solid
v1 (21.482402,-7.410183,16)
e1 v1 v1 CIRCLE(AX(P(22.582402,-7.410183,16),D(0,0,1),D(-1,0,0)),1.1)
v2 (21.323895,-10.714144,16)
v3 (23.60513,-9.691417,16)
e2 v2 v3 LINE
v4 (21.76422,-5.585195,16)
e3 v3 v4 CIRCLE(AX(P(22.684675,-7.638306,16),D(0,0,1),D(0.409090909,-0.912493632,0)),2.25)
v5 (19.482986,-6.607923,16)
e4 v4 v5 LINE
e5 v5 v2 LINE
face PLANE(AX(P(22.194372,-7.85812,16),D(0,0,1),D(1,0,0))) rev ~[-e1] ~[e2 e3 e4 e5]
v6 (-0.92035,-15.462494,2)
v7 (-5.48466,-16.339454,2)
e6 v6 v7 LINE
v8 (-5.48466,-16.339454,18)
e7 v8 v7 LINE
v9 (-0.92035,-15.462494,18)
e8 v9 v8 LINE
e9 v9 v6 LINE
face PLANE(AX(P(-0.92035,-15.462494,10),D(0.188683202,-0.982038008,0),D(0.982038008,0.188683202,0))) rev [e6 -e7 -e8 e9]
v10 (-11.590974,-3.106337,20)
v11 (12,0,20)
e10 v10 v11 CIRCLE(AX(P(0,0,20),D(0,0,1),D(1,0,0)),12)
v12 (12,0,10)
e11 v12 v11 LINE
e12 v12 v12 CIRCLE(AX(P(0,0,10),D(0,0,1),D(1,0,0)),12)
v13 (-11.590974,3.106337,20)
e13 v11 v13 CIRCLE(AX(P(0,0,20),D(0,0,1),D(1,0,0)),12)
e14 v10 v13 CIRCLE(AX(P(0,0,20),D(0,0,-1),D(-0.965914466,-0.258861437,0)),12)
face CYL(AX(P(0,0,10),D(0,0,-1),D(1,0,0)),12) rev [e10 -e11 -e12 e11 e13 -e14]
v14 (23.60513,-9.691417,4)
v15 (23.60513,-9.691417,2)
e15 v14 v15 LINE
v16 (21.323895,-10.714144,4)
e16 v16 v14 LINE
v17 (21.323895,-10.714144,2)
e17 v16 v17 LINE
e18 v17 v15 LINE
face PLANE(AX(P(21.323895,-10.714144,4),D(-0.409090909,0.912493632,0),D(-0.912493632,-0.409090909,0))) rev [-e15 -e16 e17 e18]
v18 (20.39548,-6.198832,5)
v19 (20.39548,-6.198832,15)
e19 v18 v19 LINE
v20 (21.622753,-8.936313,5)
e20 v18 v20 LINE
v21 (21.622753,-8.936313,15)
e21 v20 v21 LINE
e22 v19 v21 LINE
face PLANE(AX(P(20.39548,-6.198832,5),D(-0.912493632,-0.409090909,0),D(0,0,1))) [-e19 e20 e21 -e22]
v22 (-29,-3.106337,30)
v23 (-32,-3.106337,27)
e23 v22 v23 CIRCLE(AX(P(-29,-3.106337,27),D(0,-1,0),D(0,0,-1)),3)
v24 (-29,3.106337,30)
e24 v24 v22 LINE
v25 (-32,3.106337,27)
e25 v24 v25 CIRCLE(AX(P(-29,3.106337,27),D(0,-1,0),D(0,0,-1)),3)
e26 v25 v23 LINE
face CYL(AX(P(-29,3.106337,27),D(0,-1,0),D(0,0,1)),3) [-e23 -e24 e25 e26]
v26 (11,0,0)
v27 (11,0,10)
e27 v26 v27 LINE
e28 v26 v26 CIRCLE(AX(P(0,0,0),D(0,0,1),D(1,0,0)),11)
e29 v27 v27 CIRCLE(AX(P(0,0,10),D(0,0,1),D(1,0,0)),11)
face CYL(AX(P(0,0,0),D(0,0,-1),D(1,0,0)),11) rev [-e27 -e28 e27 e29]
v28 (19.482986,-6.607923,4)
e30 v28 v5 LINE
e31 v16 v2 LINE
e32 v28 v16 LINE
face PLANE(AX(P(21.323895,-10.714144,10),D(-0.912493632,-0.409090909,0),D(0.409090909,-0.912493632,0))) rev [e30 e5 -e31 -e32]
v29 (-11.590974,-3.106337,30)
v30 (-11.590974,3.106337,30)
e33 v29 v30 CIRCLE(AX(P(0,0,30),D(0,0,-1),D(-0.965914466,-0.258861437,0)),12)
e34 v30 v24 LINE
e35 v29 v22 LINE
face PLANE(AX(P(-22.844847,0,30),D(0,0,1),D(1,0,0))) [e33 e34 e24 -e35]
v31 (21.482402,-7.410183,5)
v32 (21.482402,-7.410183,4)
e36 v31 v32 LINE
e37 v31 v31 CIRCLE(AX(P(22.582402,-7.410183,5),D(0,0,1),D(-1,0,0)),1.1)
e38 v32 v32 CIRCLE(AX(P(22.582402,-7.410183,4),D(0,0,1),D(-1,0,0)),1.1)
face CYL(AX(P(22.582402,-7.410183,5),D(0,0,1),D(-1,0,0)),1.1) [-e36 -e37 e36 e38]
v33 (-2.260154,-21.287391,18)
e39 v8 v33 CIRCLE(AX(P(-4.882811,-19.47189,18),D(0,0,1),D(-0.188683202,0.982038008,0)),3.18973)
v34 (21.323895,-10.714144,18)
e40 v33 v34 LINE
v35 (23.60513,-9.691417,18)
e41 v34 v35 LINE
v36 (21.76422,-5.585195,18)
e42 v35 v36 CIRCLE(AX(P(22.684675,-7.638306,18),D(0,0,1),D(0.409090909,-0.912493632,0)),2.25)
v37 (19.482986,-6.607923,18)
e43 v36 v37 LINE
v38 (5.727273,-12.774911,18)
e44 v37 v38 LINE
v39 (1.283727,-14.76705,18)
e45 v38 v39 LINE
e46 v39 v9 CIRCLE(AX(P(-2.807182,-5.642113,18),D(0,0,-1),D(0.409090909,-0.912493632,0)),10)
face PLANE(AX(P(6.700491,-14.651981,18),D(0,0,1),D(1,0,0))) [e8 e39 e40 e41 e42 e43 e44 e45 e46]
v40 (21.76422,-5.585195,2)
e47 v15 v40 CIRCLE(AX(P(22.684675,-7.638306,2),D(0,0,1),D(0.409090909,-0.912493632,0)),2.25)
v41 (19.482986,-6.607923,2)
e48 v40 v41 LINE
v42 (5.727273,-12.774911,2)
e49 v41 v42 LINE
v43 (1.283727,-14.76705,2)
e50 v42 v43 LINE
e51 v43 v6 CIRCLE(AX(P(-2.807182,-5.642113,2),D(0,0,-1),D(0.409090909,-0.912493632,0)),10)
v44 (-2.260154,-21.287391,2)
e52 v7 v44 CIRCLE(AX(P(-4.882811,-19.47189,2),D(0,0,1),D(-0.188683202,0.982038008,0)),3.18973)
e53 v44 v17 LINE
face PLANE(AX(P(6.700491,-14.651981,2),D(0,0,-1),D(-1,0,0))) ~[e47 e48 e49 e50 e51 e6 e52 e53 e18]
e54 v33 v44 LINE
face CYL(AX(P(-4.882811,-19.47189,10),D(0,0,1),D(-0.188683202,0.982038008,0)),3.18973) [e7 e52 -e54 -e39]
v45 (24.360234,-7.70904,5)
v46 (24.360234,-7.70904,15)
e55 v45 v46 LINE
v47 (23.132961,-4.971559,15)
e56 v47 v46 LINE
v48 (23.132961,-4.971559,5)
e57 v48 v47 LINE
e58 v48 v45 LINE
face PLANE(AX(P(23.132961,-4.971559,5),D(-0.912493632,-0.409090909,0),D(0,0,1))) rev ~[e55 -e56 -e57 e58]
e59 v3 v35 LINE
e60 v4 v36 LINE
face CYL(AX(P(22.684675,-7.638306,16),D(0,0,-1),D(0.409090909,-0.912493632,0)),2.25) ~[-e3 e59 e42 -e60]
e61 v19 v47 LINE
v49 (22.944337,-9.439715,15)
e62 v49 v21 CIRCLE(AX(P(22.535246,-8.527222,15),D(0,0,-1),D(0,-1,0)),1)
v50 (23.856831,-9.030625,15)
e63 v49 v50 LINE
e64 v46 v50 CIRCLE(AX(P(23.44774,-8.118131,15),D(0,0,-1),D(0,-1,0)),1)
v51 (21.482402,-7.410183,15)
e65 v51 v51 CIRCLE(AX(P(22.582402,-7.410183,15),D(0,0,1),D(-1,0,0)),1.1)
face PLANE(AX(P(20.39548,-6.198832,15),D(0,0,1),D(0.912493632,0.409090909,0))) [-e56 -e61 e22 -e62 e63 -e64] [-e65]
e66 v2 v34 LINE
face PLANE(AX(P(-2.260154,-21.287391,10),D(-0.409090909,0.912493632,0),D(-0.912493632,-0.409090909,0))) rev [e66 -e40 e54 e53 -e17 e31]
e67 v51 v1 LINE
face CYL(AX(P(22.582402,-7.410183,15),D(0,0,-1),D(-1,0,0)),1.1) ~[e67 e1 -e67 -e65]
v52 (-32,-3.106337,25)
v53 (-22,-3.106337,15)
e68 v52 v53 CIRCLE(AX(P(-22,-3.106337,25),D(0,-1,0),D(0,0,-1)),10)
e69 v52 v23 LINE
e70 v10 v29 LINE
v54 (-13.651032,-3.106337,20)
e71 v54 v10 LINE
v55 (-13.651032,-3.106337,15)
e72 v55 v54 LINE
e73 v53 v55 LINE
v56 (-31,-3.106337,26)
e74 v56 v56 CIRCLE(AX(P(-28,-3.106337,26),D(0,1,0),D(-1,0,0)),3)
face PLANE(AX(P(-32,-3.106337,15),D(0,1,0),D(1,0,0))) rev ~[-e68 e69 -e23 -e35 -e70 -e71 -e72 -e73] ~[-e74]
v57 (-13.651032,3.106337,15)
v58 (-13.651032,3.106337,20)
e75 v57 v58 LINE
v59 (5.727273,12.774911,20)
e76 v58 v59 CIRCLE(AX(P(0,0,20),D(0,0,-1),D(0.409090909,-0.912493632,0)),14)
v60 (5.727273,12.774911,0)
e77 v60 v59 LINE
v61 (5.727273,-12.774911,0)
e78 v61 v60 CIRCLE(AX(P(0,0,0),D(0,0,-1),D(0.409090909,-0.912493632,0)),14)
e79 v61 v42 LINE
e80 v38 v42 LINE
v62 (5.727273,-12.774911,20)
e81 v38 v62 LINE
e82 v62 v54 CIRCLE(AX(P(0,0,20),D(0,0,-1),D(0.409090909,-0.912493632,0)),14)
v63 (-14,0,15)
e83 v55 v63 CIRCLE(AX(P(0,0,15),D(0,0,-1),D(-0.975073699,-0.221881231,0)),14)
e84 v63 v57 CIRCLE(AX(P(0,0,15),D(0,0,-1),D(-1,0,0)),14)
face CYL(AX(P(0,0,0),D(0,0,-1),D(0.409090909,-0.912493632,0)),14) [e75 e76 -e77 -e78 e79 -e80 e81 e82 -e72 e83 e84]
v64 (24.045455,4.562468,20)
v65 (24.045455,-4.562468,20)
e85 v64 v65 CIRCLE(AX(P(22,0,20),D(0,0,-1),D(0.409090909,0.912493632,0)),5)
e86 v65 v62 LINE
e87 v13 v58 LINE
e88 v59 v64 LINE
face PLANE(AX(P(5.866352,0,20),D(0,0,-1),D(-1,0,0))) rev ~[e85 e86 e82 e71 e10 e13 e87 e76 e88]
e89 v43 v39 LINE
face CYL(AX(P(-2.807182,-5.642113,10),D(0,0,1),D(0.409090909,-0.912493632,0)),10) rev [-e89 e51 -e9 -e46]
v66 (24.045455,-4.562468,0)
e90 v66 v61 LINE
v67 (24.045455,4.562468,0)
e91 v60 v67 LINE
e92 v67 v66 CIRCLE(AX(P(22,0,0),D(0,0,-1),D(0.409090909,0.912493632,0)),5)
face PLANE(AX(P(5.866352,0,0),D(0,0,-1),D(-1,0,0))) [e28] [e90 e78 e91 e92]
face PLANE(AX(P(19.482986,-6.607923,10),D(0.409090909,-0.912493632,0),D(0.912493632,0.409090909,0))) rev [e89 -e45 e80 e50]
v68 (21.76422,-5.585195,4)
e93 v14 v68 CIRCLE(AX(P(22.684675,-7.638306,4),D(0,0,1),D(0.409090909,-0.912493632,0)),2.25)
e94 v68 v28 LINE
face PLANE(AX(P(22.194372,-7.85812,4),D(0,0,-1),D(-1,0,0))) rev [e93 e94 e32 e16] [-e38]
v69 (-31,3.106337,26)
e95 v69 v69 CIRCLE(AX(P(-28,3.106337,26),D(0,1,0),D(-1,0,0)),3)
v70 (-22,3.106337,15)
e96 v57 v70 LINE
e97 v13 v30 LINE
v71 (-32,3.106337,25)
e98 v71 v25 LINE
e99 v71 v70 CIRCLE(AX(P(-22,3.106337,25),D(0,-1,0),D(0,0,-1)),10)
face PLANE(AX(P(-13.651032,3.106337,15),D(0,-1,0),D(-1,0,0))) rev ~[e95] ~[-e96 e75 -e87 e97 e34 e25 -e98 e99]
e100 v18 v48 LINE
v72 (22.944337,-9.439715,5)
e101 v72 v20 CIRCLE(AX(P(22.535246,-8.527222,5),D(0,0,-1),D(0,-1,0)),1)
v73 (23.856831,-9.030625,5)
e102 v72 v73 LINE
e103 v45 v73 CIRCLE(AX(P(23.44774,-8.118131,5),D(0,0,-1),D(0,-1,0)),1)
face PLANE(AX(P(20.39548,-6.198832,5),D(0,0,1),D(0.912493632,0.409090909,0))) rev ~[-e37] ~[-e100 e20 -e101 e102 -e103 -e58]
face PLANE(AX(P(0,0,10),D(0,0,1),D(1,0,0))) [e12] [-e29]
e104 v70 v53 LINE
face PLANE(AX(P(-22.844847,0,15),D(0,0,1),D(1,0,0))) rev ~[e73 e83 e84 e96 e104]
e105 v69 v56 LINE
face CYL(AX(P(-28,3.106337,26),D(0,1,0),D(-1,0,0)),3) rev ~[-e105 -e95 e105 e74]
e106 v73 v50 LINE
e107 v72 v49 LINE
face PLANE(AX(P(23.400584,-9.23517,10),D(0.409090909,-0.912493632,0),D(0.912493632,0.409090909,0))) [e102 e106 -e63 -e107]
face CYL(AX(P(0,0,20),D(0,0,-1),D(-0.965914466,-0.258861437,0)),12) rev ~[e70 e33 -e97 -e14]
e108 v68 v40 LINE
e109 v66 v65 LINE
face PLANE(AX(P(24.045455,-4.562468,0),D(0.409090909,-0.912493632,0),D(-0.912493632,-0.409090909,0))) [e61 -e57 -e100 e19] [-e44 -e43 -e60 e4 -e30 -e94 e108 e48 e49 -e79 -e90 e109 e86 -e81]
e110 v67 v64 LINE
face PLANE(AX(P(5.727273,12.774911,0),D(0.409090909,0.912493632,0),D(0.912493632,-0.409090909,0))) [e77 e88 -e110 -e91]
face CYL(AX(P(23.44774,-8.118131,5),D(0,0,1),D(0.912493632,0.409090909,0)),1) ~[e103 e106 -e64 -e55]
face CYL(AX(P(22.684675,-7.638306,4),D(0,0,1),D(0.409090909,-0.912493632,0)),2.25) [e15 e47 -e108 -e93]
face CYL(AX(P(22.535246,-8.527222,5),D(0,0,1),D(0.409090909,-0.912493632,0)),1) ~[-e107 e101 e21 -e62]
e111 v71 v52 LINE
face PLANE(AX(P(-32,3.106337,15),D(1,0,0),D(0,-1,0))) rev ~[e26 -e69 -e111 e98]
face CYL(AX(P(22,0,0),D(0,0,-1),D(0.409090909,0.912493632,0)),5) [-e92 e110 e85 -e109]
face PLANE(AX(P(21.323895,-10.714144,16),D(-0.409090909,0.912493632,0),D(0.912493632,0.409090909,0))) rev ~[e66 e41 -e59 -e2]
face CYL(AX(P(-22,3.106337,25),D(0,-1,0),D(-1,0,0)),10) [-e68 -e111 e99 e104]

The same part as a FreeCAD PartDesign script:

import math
import FreeCAD as App
import Part
import Sketcher
from FreeCAD import Vector
Q = App.Units.Quantity


def edges_at(feature, points):
    """Names of the edges that pass closest to the given points."""
    edges = feature.Shape.Edges
    near = lambda p: min(range(len(edges)), key=lambda i: edges[i].distToShape(Part.Vertex(*p))[0])
    return sorted({f"Edge{near(p) + 1}" for p in points})

doc = App.newDocument("Part")
body = doc.addObject("PartDesign::Body", "Body")

# Sketch on XY plane
sketch1 = body.newObject("Sketcher::SketchObject", "Sketch")
sketch1.AttachmentSupport = (doc.getObject("XY_Plane"), [""])
sketch1.MapMode = "FlatFace"
sketch1.addGeometry([
    Part.LineSegment(Vector(24, 5, 0), Vector(6, 13, 0)),  # 0
    Part.ArcOfCircle(Part.Circle(Vector(0, 0, 0), Vector(0, 0, 1), 14), math.radians(66), math.radians(294)),  # 1
    Part.LineSegment(Vector(6, -13, 0), Vector(24, -5, 0)),  # 2
    Part.ArcOfCircle(Part.Circle(Vector(22, 0, 0), Vector(0, 0, 1), 5), math.radians(-66), math.radians(66)),  # 3
    Part.Circle(Vector(0, 0, 0), Vector(0, 0, 1), 11),  # 4
], False)
sketch1.addConstraint([
    Sketcher.Constraint("Tangent", 0, 2, 1, 1),
    Sketcher.Constraint("Tangent", 1, 2, 2, 1),
    Sketcher.Constraint("Tangent", 2, 2, 3, 1),
    Sketcher.Constraint("Tangent", 3, 2, 0, 1),
    Sketcher.Constraint("Coincident", 1, 3, -1, 1),
    Sketcher.Constraint("Coincident", 4, 3, -1, 1),
    Sketcher.Constraint("PointOnObject", 3, 3, -1),
    Sketcher.Constraint("Diameter", 4, Q("22 mm")),
    Sketcher.Constraint("Radius", 1, Q("14 mm")),
    Sketcher.Constraint("Radius", 3, Q("5 mm")),
    Sketcher.Constraint("DistanceX", -1, 1, 3, 3, Q("22 mm")),
])
pad1 = body.newObject("PartDesign::Pad", "Pad")
pad1.Profile = sketch1
pad1.Length = 20

# Sketch on XY plane
sketch2 = body.newObject("Sketcher::SketchObject", "Sketch001")
sketch2.AttachmentSupport = (doc.getObject("XY_Plane"), [""])
sketch2.MapMode = "FlatFace"
sketch2.AttachmentOffset = App.Placement(Vector(0, 0, 10), App.Rotation())
sketch2.addGeometry([
    Part.Circle(Vector(0, 0, 0), Vector(0, 0, 1), 12),
    Part.Circle(Vector(0, 0, 0), Vector(0, 0, 1), 11),
], False)
sketch2.addConstraint([
    Sketcher.Constraint("Coincident", 0, 3, -1, 1),
    Sketcher.Constraint("Coincident", 1, 3, -1, 1),
    Sketcher.Constraint("Diameter", 0, Q("24 mm")),
    Sketcher.Constraint("Diameter", 1, Q("22 mm")),
])
pocket1 = body.newObject("PartDesign::Pocket", "Pocket")
pocket1.Profile = sketch2
pocket1.Length = 10
pocket1.Reversed = True

# Sketch on an angled plane
sketch3 = body.newObject("Sketcher::SketchObject", "Sketch002")
sketch3.Placement = App.Placement(Vector(5.727273, -12.774911, 0), App.Rotation(Vector(0.912493632, 0.409090909, 0), Vector(0, 0, 1), Vector(0.409090909, -0.912493632, 0), "ZXY"))
sketch3.addGeometry([
    Part.LineSegment(Vector(16.1, 15, 0), Vector(16.1, 5, 0)),
    Part.LineSegment(Vector(16.1, 5, 0), Vector(19.1, 5, 0)),
    Part.LineSegment(Vector(19.1, 5, 0), Vector(19.1, 15, 0)),
    Part.LineSegment(Vector(19.1, 15, 0), Vector(16.1, 15, 0)),
], False)
sketch3.addConstraint([
    Sketcher.Constraint("Coincident", 0, 2, 1, 1),
    Sketcher.Constraint("Coincident", 1, 2, 2, 1),
    Sketcher.Constraint("Coincident", 2, 2, 3, 1),
    Sketcher.Constraint("Coincident", 3, 2, 0, 1),
    Sketcher.Constraint("Vertical", 0),
    Sketcher.Constraint("Horizontal", 1),
    Sketcher.Constraint("Vertical", 2),
    Sketcher.Constraint("Horizontal", 3),
    Sketcher.Constraint("DistanceX", 1, 1, 1, 2, Q("3 mm")),
    Sketcher.Constraint("DistanceY", 0, 2, 0, 1, Q("10 mm")),
    Sketcher.Constraint("DistanceY", -1, 1, 0, 2, Q("5 mm")),
    Sketcher.Constraint("DistanceX", -1, 1, 0, 2, Q("16.07486 mm")),
])
pad2 = body.newObject("PartDesign::Pad", "Pad001")
pad2.Profile = sketch3
pad2.Length = 4

# Sketch on XY plane
sketch4 = body.newObject("Sketcher::SketchObject", "Sketch003")
sketch4.AttachmentSupport = (doc.getObject("XY_Plane"), [""])
sketch4.MapMode = "FlatFace"
sketch4.AttachmentOffset = App.Placement(Vector(0, 0, 15), App.Rotation())
sketch4.addGeometry(Part.Circle(Vector(22.6, -7.4, 0), Vector(0, 0, 1), 1.1), False)
sketch4.addConstraint([
    Sketcher.Constraint("Diameter", 0, Q("2.2 mm")),
    Sketcher.Constraint("DistanceX", -1, 1, 0, 3, Q("22.582402 mm")),
    Sketcher.Constraint("DistanceY", 0, 3, -1, 1, Q("7.410183 mm")),
])
pad3 = body.newObject("PartDesign::Pad", "Pad002")
pad3.Profile = sketch4
pad3.Length = 1
doc.recompute()

datumplane = body.newObject("PartDesign::Plane", "DatumPlane")
datumplane.AttachmentSupport = (doc.getObject("XY_Plane"), [""])
datumplane.MapMode = "FlatFace"
datumplane.AttachmentOffset = App.Placement(Vector(0, 0, 10), App.Rotation())
mirrored = body.newObject("PartDesign::Mirrored", "Mirrored")
mirrored.Originals = [pad3]
mirrored.MirrorPlane = (datumplane, [""])
body.Tip = mirrored

# Sketch on XY plane
sketch5 = body.newObject("Sketcher::SketchObject", "Sketch004")
sketch5.AttachmentSupport = (doc.getObject("XY_Plane"), [""])
sketch5.MapMode = "FlatFace"
sketch5.AttachmentOffset = App.Placement(Vector(0, 0, 16), App.Rotation())
sketch5.addGeometry([
    Part.LineSegment(Vector(21.3, -10.7, 0), Vector(23.6, -9.7, 0)),
    Part.ArcOfCircle(Part.Circle(Vector(22.7, -7.6, 0), Vector(0, 0, 1), 2.2), math.radians(-66), math.radians(114)),
    Part.LineSegment(Vector(21.8, -5.6, 0), Vector(19.5, -6.6, 0)),
    Part.LineSegment(Vector(19.5, -6.6, 0), Vector(21.3, -10.7, 0)),
], False)
sketch5.addConstraint([
    Sketcher.Constraint("Tangent", 0, 2, 1, 1),
    Sketcher.Constraint("Tangent", 1, 2, 2, 1),
    Sketcher.Constraint("Coincident", 2, 2, 3, 1),
    Sketcher.Constraint("Coincident", 3, 2, 0, 1),
    Sketcher.Constraint("Parallel", 0, 2),
    Sketcher.Constraint("Perpendicular", 2, 3),
    Sketcher.Constraint("Radius", 1, Q("2.25 mm")),
    Sketcher.Constraint("Distance", 0, Q("2.5 mm")),
    Sketcher.Constraint("DistanceX", -1, 1, 0, 2, Q("23.60513 mm")),
    Sketcher.Constraint("DistanceX", -1, 1, 1, 2, Q("21.76422 mm")),
    Sketcher.Constraint("DistanceY", 1, 3, -1, 1, Q("7.638306 mm")),
])
pad4 = body.newObject("PartDesign::Pad", "Pad003")
pad4.Profile = sketch5
pad4.Length = 2

# Sketch on XY plane
sketch6 = body.newObject("Sketcher::SketchObject", "Sketch005")
sketch6.AttachmentSupport = (doc.getObject("XY_Plane"), [""])
sketch6.MapMode = "FlatFace"
sketch6.AttachmentOffset = App.Placement(Vector(0, 0, 10), App.Rotation())
sketch6.addGeometry([
    Part.LineSegment(Vector(-2.3, -21.3, 0), Vector(21.3, -10.7, 0)),  # 0
    Part.LineSegment(Vector(21.3, -10.7, 0), Vector(19.5, -6.6, 0)),  # 1
    Part.LineSegment(Vector(19.5, -6.6, 0), Vector(1.3, -14.8, 0)),  # 2
    Part.ArcOfCircle(Part.Circle(Vector(-2.8, -5.6, 0), Vector(0, 0, 1), 10), math.radians(-79.12), math.radians(-65.85)),  # 3
    Part.LineSegment(Vector(-0.9, -15.5, 0), Vector(-5.5, -16.3, 0)),  # 4
    Part.ArcOfCircle(Part.Circle(Vector(-4.9, -19.5, 0), Vector(0, 0, 1), 3.2), math.radians(101), math.radians(325)),  # 5
], False)
sketch6.addConstraint([
    Sketcher.Constraint("Coincident", 0, 2, 1, 1),
    Sketcher.Constraint("Coincident", 1, 2, 2, 1),
    Sketcher.Constraint("Tangent", 2, 2, 3, 2),
    Sketcher.Constraint("Tangent", 3, 1, 4, 1),
    Sketcher.Constraint("Tangent", 4, 2, 5, 1),
    Sketcher.Constraint("Coincident", 5, 2, 0, 1),
    Sketcher.Constraint("Perpendicular", 0, 1),
    Sketcher.Constraint("Perpendicular", 1, 2),
    Sketcher.Constraint("Radius", 3, Q("10 mm")),
    Sketcher.Constraint("Distance", 1, Q("4.5 mm")),
    Sketcher.Constraint("Radius", 5, Q("3.18973 mm")),
    Sketcher.Constraint("DistanceY", 5, 2, 5, 3, Q("1.815501 mm")),
    Sketcher.Constraint("DistanceX", 3, 3, -1, 1, Q("2.807182 mm")),
    Sketcher.Constraint("DistanceX", 5, 3, -1, 1, Q("4.882811 mm")),
    Sketcher.Constraint("DistanceY", 5, 3, -1, 1, Q("19.47189 mm")),
    Sketcher.Constraint("DistanceY", 2, 2, -1, 1, Q("14.76705 mm")),
    Sketcher.Constraint("DistanceY", 0, 2, 3, 3, Q("5.072031 mm")),
])
pad5 = body.newObject("PartDesign::Pad", "Pad004")
pad5.Profile = sketch6
pad5.Length = 8
doc.recompute()

datumplane2 = body.newObject("PartDesign::Plane", "DatumPlane001")
datumplane2.AttachmentSupport = (doc.getObject("XY_Plane"), [""])
datumplane2.MapMode = "FlatFace"
datumplane2.AttachmentOffset = App.Placement(Vector(0, 0, 10), App.Rotation())
mirrored2 = body.newObject("PartDesign::Mirrored", "Mirrored001")
mirrored2.Originals = [pad4, pad5]
mirrored2.MirrorPlane = (datumplane2, [""])
body.Tip = mirrored2
doc.recompute()

fillet = body.newObject("PartDesign::Fillet", "Fillet")
fillet.Base = (mirrored2, edges_at(mirrored2, [(24.769, -8.622, 10)]))
fillet.Radius = 1
doc.recompute()

fillet2 = body.newObject("PartDesign::Fillet", "Fillet001")
fillet2.Base = (fillet, edges_at(fillet, [(22.032, -9.849, 10)]))
fillet2.Radius = 1

# Sketch on XY plane
sketch7 = body.newObject("Sketcher::SketchObject", "Sketch006")
sketch7.AttachmentSupport = (doc.getObject("XY_Plane"), [""])
sketch7.MapMode = "FlatFace"
sketch7.AttachmentOffset = App.Placement(Vector(0, 0, 20), App.Rotation())
sketch7.addGeometry([
    Part.LineSegment(Vector(-13.7, -3.1, 0), Vector(-11.6, -3.1, 0)),
    Part.ArcOfCircle(Part.Circle(Vector(0, 0, 0), Vector(0, 0, 1), 12), math.radians(165), math.radians(195)),
    Part.LineSegment(Vector(-11.6, 3.1, 0), Vector(-13.7, 3.1, 0)),
    Part.ArcOfCircle(Part.Circle(Vector(0, 0, 0), Vector(0, 0, 1), 14), math.radians(167), math.radians(193)),
], False)
sketch7.addConstraint([
    Sketcher.Constraint("Coincident", 0, 2, 1, 2),
    Sketcher.Constraint("Coincident", 1, 1, 2, 1),
    Sketcher.Constraint("Coincident", 2, 2, 3, 1),
    Sketcher.Constraint("Coincident", 3, 2, 0, 1),
    Sketcher.Constraint("Horizontal", 0),
    Sketcher.Constraint("Horizontal", 2),
    Sketcher.Constraint("Coincident", 1, 3, -1, 1),
    Sketcher.Constraint("Coincident", 3, 3, -1, 1),
    Sketcher.Constraint("Vertical", 0, 2, 1, 1),
    Sketcher.Constraint("Radius", 1, Q("12 mm")),
    Sketcher.Constraint("Radius", 3, Q("14 mm")),
    Sketcher.Constraint("DistanceX", 0, 1, 0, 2, Q("2.060058 mm")),
])
pad6 = body.newObject("PartDesign::Pad", "Pad005")
pad6.Profile = sketch7
pad6.Length = 10

# Sketch on XY plane
sketch8 = body.newObject("Sketcher::SketchObject", "Sketch007")
sketch8.AttachmentSupport = (doc.getObject("XY_Plane"), [""])
sketch8.MapMode = "FlatFace"
sketch8.AttachmentOffset = App.Placement(Vector(0, 0, 20), App.Rotation())
sketch8.addGeometry([
    Part.LineSegment(Vector(-32, -3.1, 0), Vector(-13.7, -3.1, 0)),  # 0
    Part.ArcOfCircle(Part.Circle(Vector(0, 0, 0), Vector(0, 0, 1), 14), math.radians(180), math.radians(192.82)),  # 1
    Part.ArcOfCircle(Part.Circle(Vector(0, 0, 0), Vector(0, 0, 1), 14), math.radians(167.18), math.radians(180)),  # 2
    Part.LineSegment(Vector(-13.7, 3.1, 0), Vector(-32, 3.1, 0)),  # 3
    Part.LineSegment(Vector(-32, 3.1, 0), Vector(-32, -3.1, 0)),  # 4
], False)
sketch8.addConstraint([
    Sketcher.Constraint("Coincident", 0, 2, 1, 2),
    Sketcher.Constraint("Tangent", 1, 1, 2, 2),
    Sketcher.Constraint("Coincident", 2, 1, 3, 1),
    Sketcher.Constraint("Coincident", 3, 2, 4, 1),
    Sketcher.Constraint("Coincident", 4, 2, 0, 1),
    Sketcher.Constraint("Horizontal", 0),
    Sketcher.Constraint("Horizontal", 3),
    Sketcher.Constraint("Vertical", 4),
    Sketcher.Constraint("Coincident", 1, 3, -1, 1),
    Sketcher.Constraint("Equal", 1, 2),
    Sketcher.Constraint("PointOnObject", 1, 1, -1),
    Sketcher.Constraint("Vertical", 0, 2, 2, 1),
    Sketcher.Constraint("Radius", 1, Q("14 mm")),
    Sketcher.Constraint("DistanceX", 3, 2, -1, 1, Q("32 mm")),
    Sketcher.Constraint("DistanceX", 0, 1, 0, 2, Q("18.348968 mm")),
])
pad7 = body.newObject("PartDesign::Pad", "Pad006")
pad7.Profile = sketch8
pad7.Type = "TwoLengths"
pad7.Length = 10
pad7.Length2 = 5
doc.recompute()

fillet3 = body.newObject("PartDesign::Fillet", "Fillet002")
fillet3.Base = (pad7, edges_at(pad7, [(-32, 0, 15)]))
fillet3.Radius = 10
doc.recompute()

fillet4 = body.newObject("PartDesign::Fillet", "Fillet003")
fillet4.Base = (fillet3, edges_at(fillet3, [(-32, 0, 30)]))
fillet4.Radius = 3

# Sketch on XZ plane
sketch9 = body.newObject("Sketcher::SketchObject", "Sketch008")
sketch9.AttachmentSupport = (doc.getObject("XZ_Plane"), [""])
sketch9.MapMode = "FlatFace"
sketch9.AttachmentOffset = App.Placement(Vector(0, 0, -3.106337), App.Rotation())
sketch9.addGeometry(Part.Circle(Vector(-28, 26, 0), Vector(0, 0, 1), 3), False)
sketch9.addConstraint([
    Sketcher.Constraint("Diameter", 0, Q("6 mm")),
    Sketcher.Constraint("DistanceX", 0, 3, -1, 1, Q("28 mm")),
    Sketcher.Constraint("DistanceY", -1, 1, 0, 3, Q("26 mm")),
])
pocket2 = body.newObject("PartDesign::Pocket", "Pocket001")
pocket2.Profile = sketch9
pocket2.Type = "UpToFirst"
pocket2.Reversed = True

doc.recompute()
